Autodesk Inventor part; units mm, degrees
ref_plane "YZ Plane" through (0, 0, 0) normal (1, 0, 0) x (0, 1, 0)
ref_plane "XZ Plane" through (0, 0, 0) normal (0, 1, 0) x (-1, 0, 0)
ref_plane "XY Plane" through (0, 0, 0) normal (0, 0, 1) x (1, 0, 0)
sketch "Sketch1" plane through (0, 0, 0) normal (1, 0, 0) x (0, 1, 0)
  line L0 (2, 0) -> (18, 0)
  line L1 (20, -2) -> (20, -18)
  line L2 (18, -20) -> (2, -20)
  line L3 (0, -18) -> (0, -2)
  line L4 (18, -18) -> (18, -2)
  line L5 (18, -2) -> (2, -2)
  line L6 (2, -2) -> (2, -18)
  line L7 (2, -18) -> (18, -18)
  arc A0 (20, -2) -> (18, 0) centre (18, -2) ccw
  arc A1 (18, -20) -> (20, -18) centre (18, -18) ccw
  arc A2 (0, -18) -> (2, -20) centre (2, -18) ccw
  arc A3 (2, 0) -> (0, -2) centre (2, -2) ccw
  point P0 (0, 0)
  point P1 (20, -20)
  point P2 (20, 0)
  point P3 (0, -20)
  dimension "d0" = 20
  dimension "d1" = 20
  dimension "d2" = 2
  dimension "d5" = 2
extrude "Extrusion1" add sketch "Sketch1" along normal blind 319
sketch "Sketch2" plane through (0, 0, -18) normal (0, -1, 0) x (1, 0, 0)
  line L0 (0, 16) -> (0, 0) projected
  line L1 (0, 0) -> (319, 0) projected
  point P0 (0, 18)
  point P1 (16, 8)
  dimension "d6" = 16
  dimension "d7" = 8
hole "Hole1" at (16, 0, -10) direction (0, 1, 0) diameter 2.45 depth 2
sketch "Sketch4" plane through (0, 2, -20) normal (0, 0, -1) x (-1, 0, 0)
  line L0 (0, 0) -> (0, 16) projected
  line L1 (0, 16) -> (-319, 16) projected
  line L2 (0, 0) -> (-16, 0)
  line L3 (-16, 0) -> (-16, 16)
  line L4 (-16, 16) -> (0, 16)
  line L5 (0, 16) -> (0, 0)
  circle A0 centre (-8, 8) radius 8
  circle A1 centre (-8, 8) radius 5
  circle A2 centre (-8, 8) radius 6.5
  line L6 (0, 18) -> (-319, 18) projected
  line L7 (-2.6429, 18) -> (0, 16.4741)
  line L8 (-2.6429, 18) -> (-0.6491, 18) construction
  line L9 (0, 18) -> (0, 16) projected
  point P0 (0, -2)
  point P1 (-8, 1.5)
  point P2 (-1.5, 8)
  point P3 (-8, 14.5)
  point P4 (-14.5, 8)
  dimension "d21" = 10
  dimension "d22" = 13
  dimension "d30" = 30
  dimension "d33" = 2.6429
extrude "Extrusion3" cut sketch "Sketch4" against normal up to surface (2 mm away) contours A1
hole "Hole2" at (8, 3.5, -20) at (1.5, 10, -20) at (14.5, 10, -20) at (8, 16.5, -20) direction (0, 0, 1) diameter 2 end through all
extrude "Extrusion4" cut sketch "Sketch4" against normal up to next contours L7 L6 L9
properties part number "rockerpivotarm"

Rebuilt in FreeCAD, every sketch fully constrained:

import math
import FreeCAD as App
import Part
import Sketcher
from FreeCAD import Vector
Q = App.Units.Quantity


def add_polygon(sketch, points):
    """Adds a closed chain of lines whose ends are joined by coincident constraints."""
    first, n = sketch.GeometryCount, len(points)
    for a, b in zip(points, points[1:] + points[:1]):
        sketch.addGeometry(Part.LineSegment(App.Vector(*a, 0), App.Vector(*b, 0)), False)
    for i in range(n):
        sketch.addConstraint(Sketcher.Constraint("Coincident", first + i, 2, first + (i + 1) % n, 1))

doc = App.newDocument("Part")
body = doc.addObject("PartDesign::Body", "Body")

sketch1 = doc.addObject("Sketcher::SketchObject", "Sketch")
body.addObject(sketch1)
sketch1.AttachmentSupport = (doc.YZ_Plane, [""])
sketch1.MapMode = "FlatFace"
sketch1.addGeometry(Part.LineSegment(Vector(18, 0, 0), Vector(2, 0, 0)), False)
sketch1.addGeometry(Part.ArcOfCircle(Part.Circle(Vector(2, -2, 0), Vector(0, 0, 1), 2), math.radians(90), math.radians(180)), False)
sketch1.addGeometry(Part.LineSegment(Vector(0, -2, 0), Vector(0, -18, 0)), False)
sketch1.addGeometry(Part.ArcOfCircle(Part.Circle(Vector(2, -18, 0), Vector(0, 0, 1), 2), math.radians(180), math.radians(270)), False)
sketch1.addGeometry(Part.LineSegment(Vector(2, -20, 0), Vector(18, -20, 0)), False)
sketch1.addGeometry(Part.ArcOfCircle(Part.Circle(Vector(18, -18, 0), Vector(0, 0, 1), 2), math.radians(-90), math.radians(0)), False)
sketch1.addGeometry(Part.LineSegment(Vector(20, -18, 0), Vector(20, -2, 0)), False)
sketch1.addGeometry(Part.ArcOfCircle(Part.Circle(Vector(18, -2, 0), Vector(0, 0, 1), 2), math.radians(0), math.radians(90)), False)
add_polygon(sketch1, [(18, -2), (18, -18), (2, -18), (2, -2)])
sketch1.addConstraint([
    Sketcher.Constraint("Tangent", 0, 2, 1, 1),
    Sketcher.Constraint("Tangent", 1, 2, 2, 1),
    Sketcher.Constraint("Tangent", 2, 2, 3, 1),
    Sketcher.Constraint("Tangent", 3, 2, 4, 1),
    Sketcher.Constraint("Tangent", 4, 2, 5, 1),
    Sketcher.Constraint("Tangent", 5, 2, 6, 1),
    Sketcher.Constraint("Tangent", 6, 2, 7, 1),
    Sketcher.Constraint("Tangent", 7, 2, 0, 1),
    Sketcher.Constraint("Horizontal", 0),
    Sketcher.Constraint("Vertical", 2),
    Sketcher.Constraint("Horizontal", 4),
    Sketcher.Constraint("Vertical", 6),
    Sketcher.Constraint("Vertical", 8),
    Sketcher.Constraint("Horizontal", 9),
    Sketcher.Constraint("Vertical", 10),
    Sketcher.Constraint("Horizontal", 11),
    Sketcher.Constraint("Coincident", 8, 2, 5, 3),
    Sketcher.Constraint("Coincident", 9, 2, 3, 3),
    Sketcher.Constraint("Coincident", 10, 2, 1, 3),
    Sketcher.Constraint("Equal", 5, 7),
    Sketcher.Constraint("PointOnObject", 0, 2, -1),
    Sketcher.Constraint("PointOnObject", 1, 2, -2),
    Sketcher.Constraint("Equal", 11, 2),
    Sketcher.Constraint("Radius", 1, 2.0),
    Sketcher.Constraint("DistanceY", 3, 2, -1, 1, 20.0),
])
pad1 = doc.addObject("PartDesign::Pad", "Pad")
body.addObject(pad1)
pad1.Profile = sketch1
pad1.Length = 319

sketch2 = doc.addObject("Sketcher::SketchObject", "Sketch001")
body.addObject(sketch2)
sketch2.AttachmentSupport = (doc.XZ_Plane, [""])
sketch2.MapMode = "FlatFace"
sketch2.addGeometry(Part.Circle(Vector(16, -10, 0), Vector(0, 0, 1), 1.225), False)
sketch2.addConstraint([
    Sketcher.Constraint("Diameter", 0, 2.45),
    Sketcher.Constraint("DistanceX", -1, 1, 0, 3, 16.0),
    Sketcher.Constraint("DistanceY", 0, 3, -1, 1, 10.0),
])
doc.recompute()
hole = doc.addObject("PartDesign::Hole", "Hole")
body.addObject(hole)
hole.Profile = sketch2
hole.ThreadType = "None"
hole.Diameter = 2.45
hole.DepthType = "Dimension"
hole.Depth = 2
hole.DrillPoint = "Flat"

sketch3 = doc.addObject("Sketcher::SketchObject", "Sketch002")
body.addObject(sketch3)
sketch3.AttachmentSupport = (doc.XY_Plane, [""])
sketch3.MapMode = "FlatFace"
sketch3.AttachmentOffset = App.Placement(Vector(0, 0, -20), App.Rotation())
sketch3.addGeometry(Part.Circle(Vector(8, 10, 0), Vector(0, 0, 1), 5), False)
sketch3.addConstraint([
    Sketcher.Constraint("Diameter", 0, 10.0),
    Sketcher.Constraint("DistanceY", -1, 1, 0, 3, 10.0),
    Sketcher.Constraint("DistanceX", -1, 1, 0, 3, 8.0),
])
pocket1 = doc.addObject("PartDesign::Pocket", "Pocket")
body.addObject(pocket1)
pocket1.Profile = sketch3
pocket1.Length = 2
pocket1.Reversed = True

sketch4 = doc.addObject("Sketcher::SketchObject", "Sketch003")
body.addObject(sketch4)
sketch4.AttachmentSupport = (doc.XY_Plane, [""])
sketch4.MapMode = "FlatFace"
sketch4.AttachmentOffset = App.Placement(Vector(0, 0, -20), App.Rotation())
sketch4.addGeometry([
    Part.Circle(Vector(8, 3.5, 0), Vector(0, 0, 1), 1),
    Part.Circle(Vector(1.5, 10, 0), Vector(0, 0, 1), 1),
    Part.Circle(Vector(14.5, 10, 0), Vector(0, 0, 1), 1),
    Part.Circle(Vector(8, 16.5, 0), Vector(0, 0, 1), 1),
], False)
sketch4.addConstraint([
    Sketcher.Constraint("Equal", 0, 1),
    Sketcher.Constraint("Equal", 1, 2),
    Sketcher.Constraint("Equal", 2, 3),
    Sketcher.Constraint("Horizontal", 1, 3, 2, 3),
    Sketcher.Constraint("Vertical", 0, 3, 3, 3),
    Sketcher.Constraint("Diameter", 0, 2.0),
    Sketcher.Constraint("DistanceX", -1, 1, 0, 3, 8.0),
    Sketcher.Constraint("DistanceY", -1, 1, 1, 3, 10.0),
    Sketcher.Constraint("DistanceX", 1, 3, 2, 3, 13.0),
    Sketcher.Constraint("DistanceY", 0, 3, 3, 3, 13.0),
    Sketcher.Constraint("DistanceY", -1, 1, 0, 3, 3.5),
    Sketcher.Constraint("DistanceX", -1, 1, 1, 3, 1.5),
])
doc.recompute()
hole2 = doc.addObject("PartDesign::Hole", "Hole001")
body.addObject(hole2)
hole2.Profile = sketch4
hole2.ThreadType = "None"
hole2.Diameter = 2
hole2.DepthType = "ThroughAll"
hole2.Reversed = True

sketch5 = doc.addObject("Sketcher::SketchObject", "Sketch004")
body.addObject(sketch5)
sketch5.AttachmentSupport = (doc.XY_Plane, [""])
sketch5.MapMode = "FlatFace"
sketch5.AttachmentOffset = App.Placement(Vector(0, 0, -20), App.Rotation())
add_polygon(sketch5, [(2.6429, 20), (0, 18.4741), (0, 20)])
sketch5.addConstraint([
    Sketcher.Constraint("Vertical", 1),
    Sketcher.Constraint("Horizontal", 2),
    Sketcher.Constraint("PointOnObject", 0, 2, -2),
    Sketcher.Constraint("DistanceX", 2, 1, 2, 2, 2.643),
    Sketcher.Constraint("Angle", 0, Q("-149.9997 deg")),
    Sketcher.Constraint("DistanceY", -1, 1, 1, 2, 20.0),
])
pocket2 = doc.addObject("PartDesign::Pocket", "Pocket001")
body.addObject(pocket2)
pocket2.Profile = sketch5
pocket2.Length = 19.943
pocket2.Reversed = True

doc.recompute()
